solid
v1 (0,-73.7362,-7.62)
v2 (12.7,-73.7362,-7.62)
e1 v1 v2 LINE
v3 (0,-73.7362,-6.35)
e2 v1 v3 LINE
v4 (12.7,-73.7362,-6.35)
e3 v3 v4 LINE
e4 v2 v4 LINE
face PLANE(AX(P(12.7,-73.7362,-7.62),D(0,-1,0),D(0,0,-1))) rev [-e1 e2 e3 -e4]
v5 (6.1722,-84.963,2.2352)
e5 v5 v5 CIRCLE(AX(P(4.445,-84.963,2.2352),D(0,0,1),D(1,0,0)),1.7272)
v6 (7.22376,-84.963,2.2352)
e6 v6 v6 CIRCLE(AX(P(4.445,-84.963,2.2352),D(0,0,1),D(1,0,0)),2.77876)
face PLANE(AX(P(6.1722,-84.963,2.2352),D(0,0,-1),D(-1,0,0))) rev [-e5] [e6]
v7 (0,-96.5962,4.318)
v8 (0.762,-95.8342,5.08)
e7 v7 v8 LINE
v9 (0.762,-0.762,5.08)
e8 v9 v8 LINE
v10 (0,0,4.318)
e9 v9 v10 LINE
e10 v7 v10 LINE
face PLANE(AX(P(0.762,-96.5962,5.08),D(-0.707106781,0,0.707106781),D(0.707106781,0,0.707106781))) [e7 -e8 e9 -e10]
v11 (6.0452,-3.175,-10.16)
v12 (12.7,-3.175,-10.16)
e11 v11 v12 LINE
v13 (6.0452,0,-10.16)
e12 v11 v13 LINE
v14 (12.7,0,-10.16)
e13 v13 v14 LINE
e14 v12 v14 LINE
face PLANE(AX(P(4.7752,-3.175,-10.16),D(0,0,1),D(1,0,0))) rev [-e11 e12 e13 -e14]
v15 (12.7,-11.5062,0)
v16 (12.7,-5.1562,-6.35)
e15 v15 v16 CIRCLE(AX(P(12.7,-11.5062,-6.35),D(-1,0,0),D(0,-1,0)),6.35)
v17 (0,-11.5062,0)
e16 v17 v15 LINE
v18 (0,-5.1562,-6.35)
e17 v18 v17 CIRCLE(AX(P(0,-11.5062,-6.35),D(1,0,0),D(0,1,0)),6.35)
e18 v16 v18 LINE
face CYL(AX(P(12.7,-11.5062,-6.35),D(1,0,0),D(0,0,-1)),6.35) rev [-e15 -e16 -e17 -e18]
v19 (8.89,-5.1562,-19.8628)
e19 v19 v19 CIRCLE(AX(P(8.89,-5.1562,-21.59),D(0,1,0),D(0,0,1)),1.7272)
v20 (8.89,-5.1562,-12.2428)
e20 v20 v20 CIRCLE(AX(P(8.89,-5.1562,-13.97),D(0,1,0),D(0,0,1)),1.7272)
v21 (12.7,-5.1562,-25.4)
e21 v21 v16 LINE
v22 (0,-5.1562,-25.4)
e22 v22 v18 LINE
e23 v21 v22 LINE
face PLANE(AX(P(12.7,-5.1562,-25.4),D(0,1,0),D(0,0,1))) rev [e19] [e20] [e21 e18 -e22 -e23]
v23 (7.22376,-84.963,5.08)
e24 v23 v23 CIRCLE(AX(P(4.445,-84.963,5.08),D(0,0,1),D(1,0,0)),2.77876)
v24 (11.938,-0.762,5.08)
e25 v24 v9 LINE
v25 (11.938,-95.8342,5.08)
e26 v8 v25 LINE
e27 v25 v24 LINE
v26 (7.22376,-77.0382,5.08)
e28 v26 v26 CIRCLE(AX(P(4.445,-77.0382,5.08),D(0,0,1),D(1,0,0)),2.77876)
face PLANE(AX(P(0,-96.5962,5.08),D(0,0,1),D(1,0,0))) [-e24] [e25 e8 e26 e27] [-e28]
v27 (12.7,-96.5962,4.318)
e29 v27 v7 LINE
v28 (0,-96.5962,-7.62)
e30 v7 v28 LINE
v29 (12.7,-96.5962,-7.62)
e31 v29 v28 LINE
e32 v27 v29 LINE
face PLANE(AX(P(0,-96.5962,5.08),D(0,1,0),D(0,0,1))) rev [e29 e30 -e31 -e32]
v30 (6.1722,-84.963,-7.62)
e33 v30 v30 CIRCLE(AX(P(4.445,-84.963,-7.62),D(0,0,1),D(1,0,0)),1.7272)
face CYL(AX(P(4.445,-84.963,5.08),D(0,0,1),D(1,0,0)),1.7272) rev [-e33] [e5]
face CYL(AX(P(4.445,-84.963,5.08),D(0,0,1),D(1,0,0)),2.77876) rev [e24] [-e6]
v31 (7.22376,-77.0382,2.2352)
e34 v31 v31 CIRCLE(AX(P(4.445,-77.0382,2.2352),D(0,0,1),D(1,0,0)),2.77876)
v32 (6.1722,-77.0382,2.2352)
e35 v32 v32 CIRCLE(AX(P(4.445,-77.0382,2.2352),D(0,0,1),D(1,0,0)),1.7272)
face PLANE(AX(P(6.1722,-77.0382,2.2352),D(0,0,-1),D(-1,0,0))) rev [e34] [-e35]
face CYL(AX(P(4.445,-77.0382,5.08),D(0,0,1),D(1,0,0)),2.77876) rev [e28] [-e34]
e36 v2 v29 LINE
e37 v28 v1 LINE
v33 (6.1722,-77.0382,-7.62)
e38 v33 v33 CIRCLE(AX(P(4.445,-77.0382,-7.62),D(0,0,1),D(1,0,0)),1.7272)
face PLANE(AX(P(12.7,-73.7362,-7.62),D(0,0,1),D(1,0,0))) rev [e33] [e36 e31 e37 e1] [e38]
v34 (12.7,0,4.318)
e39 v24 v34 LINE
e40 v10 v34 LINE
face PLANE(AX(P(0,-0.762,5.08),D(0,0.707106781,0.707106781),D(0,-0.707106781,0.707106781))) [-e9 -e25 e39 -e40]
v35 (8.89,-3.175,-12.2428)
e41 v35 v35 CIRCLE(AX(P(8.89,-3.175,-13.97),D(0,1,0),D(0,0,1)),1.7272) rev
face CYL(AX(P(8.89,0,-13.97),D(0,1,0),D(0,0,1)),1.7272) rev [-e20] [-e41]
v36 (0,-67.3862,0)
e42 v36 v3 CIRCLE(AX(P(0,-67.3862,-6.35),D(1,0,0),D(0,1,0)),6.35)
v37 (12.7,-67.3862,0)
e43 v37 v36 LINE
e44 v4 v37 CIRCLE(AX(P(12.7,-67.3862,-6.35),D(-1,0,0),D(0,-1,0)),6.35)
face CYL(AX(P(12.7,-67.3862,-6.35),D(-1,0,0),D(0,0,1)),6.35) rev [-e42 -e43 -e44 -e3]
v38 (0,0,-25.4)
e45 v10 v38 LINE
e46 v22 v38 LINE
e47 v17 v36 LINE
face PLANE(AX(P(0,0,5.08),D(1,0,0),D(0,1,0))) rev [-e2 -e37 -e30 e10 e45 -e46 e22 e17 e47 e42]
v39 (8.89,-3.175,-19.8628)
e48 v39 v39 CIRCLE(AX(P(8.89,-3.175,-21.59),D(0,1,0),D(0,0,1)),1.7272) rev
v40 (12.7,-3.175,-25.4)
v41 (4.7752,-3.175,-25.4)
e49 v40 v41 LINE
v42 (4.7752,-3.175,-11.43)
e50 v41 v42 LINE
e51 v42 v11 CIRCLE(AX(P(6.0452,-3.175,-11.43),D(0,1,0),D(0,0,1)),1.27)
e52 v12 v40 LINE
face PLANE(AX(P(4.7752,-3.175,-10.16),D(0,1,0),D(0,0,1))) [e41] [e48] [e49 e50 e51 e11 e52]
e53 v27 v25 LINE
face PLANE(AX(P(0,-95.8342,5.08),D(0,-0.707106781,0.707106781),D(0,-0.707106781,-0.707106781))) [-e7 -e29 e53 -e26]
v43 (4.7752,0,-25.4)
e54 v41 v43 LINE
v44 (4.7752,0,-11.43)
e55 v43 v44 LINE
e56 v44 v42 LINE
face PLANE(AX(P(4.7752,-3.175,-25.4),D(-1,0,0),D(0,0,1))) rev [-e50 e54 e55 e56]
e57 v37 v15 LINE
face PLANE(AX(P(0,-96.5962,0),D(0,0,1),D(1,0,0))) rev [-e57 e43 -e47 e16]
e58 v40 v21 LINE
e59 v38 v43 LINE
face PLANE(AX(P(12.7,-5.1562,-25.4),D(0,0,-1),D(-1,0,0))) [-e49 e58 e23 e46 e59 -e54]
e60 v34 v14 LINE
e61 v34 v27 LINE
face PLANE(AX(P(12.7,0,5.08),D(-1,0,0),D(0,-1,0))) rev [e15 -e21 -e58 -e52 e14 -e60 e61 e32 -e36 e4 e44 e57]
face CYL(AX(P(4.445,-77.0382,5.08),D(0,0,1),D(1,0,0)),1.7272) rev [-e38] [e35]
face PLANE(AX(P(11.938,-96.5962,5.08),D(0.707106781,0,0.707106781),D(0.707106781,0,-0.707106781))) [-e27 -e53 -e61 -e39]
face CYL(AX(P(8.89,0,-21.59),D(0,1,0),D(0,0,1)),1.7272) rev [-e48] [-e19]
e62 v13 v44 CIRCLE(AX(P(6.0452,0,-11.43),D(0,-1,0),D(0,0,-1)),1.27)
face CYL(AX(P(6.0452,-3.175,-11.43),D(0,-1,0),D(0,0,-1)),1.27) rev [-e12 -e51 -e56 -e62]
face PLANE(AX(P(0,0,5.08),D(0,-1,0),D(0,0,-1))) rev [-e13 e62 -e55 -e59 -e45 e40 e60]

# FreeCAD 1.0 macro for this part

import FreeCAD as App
import Part
import Sketcher

V = App.Vector
Q = App.Units.Quantity


def edges_at(feature, points):
    """Names of the edges that pass closest to the given points."""
    edges = feature.Shape.Edges
    near = lambda p: min(range(len(edges)), key=lambda i: edges[i].distToShape(Part.Vertex(*p))[0])
    return sorted({f"Edge{near(p) + 1}" for p in points})

doc = App.newDocument("Part")
params = doc.addObject("Spreadsheet::Sheet", "Params")
for row, (alias, value) in enumerate([
    ("sketch1_width", "0.5 in"),
    ("sketch1_height", "3.803 in"),
    ("pad1_length", "0.2 in"),
    ("sketch2_width", "0.5 in"),
    ("sketch2_height", "0.203 in"),
    ("pad2_length", "1 in"),
    ("sketch3_width", "0.5 in"),
    ("sketch3_height", "0.9 in"),
    ("pad3_length", "0.3 in"),
    ("sketch4_diameter", "0.136 in"),
    ("hole_diameter", "0.136 in"),
    ("sketch5_height", "0.6 in"),
    ("sketch5_width", "0.312 in"),
    ("pocket1_length", "0.125 in"),
    ("fillet_radius", "0.05 in"),
    ("fillet2_radius", "0.25 in"),
    ("chamfer_size", "0.03 in"),
    ("sketch6_diameter", "0.136 in"),
    ("hole2_diameter", "0.136 in"),
    ("hole2_cbore_diameter", "0.2188 in"),
    ("hole2_cbore_depth", "0.112 in"),
], start=1):
    params.set(f"A{row}", alias)
    params.set(f"B{row}", "=" + value)
    params.setAlias(f"B{row}", alias)

body = doc.addObject("PartDesign::Body", "Body")

# Sketch on XY plane
sketch1 = body.newObject("Sketcher::SketchObject", "Sketch")
sketch1.AttachmentSupport = (doc.getObject("XY_Plane"), [""])
sketch1.MapMode = "FlatFace"
sketch1.addGeometry(Part.LineSegment(V(0, 0, 0), V(0, -97, 0)), False)
sketch1.addGeometry(Part.LineSegment(V(0, -97, 0), V(13, -97, 0)), False)
sketch1.addGeometry(Part.LineSegment(V(13, -97, 0), V(13, 0, 0)), False)
sketch1.addGeometry(Part.LineSegment(V(13, 0, 0), V(0, 0, 0)), False)
sketch1.addConstraint(Sketcher.Constraint("Coincident", 0, 2, 1, 1))
sketch1.addConstraint(Sketcher.Constraint("Coincident", 1, 2, 2, 1))
sketch1.addConstraint(Sketcher.Constraint("Coincident", 2, 2, 3, 1))
sketch1.addConstraint(Sketcher.Constraint("Coincident", 3, 2, 0, 1))
sketch1.addConstraint(Sketcher.Constraint("Vertical", 0))
sketch1.addConstraint(Sketcher.Constraint("Horizontal", 1))
sketch1.addConstraint(Sketcher.Constraint("Vertical", 2))
sketch1.addConstraint(Sketcher.Constraint("Horizontal", 3))
sketch1.addConstraint(Sketcher.Constraint("Coincident", 3, 2, -1, 1))
sketch1.addConstraint(Sketcher.Constraint("DistanceX", 1, 1, 1, 2, Q("0.5 in")))
sketch1.addConstraint(Sketcher.Constraint("DistanceY", 0, 2, 0, 1, Q("3.803 in")))
sketch1.setExpression("Constraints[9]", "Params.sketch1_width")
sketch1.setExpression("Constraints[10]", "Params.sketch1_height")
pad1 = body.newObject("PartDesign::Pad", "Pad")
pad1.Profile = sketch1
pad1.setExpression("Length", "Params.pad1_length")

# Sketch on XY plane
sketch2 = body.newObject("Sketcher::SketchObject", "Sketch001")
sketch2.AttachmentSupport = (doc.getObject("XY_Plane"), [""])
sketch2.MapMode = "FlatFace"
sketch2.addGeometry(Part.LineSegment(V(13, 0, 0), V(13, -5, 0)), False)
sketch2.addGeometry(Part.LineSegment(V(13, -5, 0), V(0, -5, 0)), False)
sketch2.addGeometry(Part.LineSegment(V(0, -5, 0), V(0, 0, 0)), False)
sketch2.addGeometry(Part.LineSegment(V(0, 0, 0), V(13, 0, 0)), False)
sketch2.addConstraint(Sketcher.Constraint("Coincident", 0, 2, 1, 1))
sketch2.addConstraint(Sketcher.Constraint("Coincident", 1, 2, 2, 1))
sketch2.addConstraint(Sketcher.Constraint("Coincident", 2, 2, 3, 1))
sketch2.addConstraint(Sketcher.Constraint("Coincident", 3, 2, 0, 1))
sketch2.addConstraint(Sketcher.Constraint("Vertical", 0))
sketch2.addConstraint(Sketcher.Constraint("Horizontal", 1))
sketch2.addConstraint(Sketcher.Constraint("Vertical", 2))
sketch2.addConstraint(Sketcher.Constraint("Horizontal", 3))
sketch2.addConstraint(Sketcher.Constraint("Coincident", 2, 2, -1, 1))
sketch2.addConstraint(Sketcher.Constraint("DistanceX", 1, 2, 1, 1, Q("0.5 in")))
sketch2.addConstraint(Sketcher.Constraint("DistanceY", 0, 2, 0, 1, Q("0.203 in")))
sketch2.setExpression("Constraints[9]", "Params.sketch2_width")
sketch2.setExpression("Constraints[10]", "Params.sketch2_height")
pad2 = body.newObject("PartDesign::Pad", "Pad001")
pad2.Profile = sketch2
pad2.setExpression("Length", "Params.pad2_length")
pad2.Reversed = True

# Sketch on XY plane
sketch3 = body.newObject("Sketcher::SketchObject", "Sketch002")
sketch3.AttachmentSupport = (doc.getObject("XY_Plane"), [""])
sketch3.MapMode = "FlatFace"
sketch3.addGeometry(Part.LineSegment(V(13, -74, 0), V(13, -97, 0)), False)
sketch3.addGeometry(Part.LineSegment(V(13, -97, 0), V(0, -97, 0)), False)
sketch3.addGeometry(Part.LineSegment(V(0, -97, 0), V(0, -74, 0)), False)
sketch3.addGeometry(Part.LineSegment(V(0, -74, 0), V(13, -74, 0)), False)
sketch3.addConstraint(Sketcher.Constraint("Coincident", 0, 2, 1, 1))
sketch3.addConstraint(Sketcher.Constraint("Coincident", 1, 2, 2, 1))
sketch3.addConstraint(Sketcher.Constraint("Coincident", 2, 2, 3, 1))
sketch3.addConstraint(Sketcher.Constraint("Coincident", 3, 2, 0, 1))
sketch3.addConstraint(Sketcher.Constraint("Vertical", 0))
sketch3.addConstraint(Sketcher.Constraint("Horizontal", 1))
sketch3.addConstraint(Sketcher.Constraint("Vertical", 2))
sketch3.addConstraint(Sketcher.Constraint("Horizontal", 3))
sketch3.addConstraint(Sketcher.Constraint("PointOnObject", 1, 2, -2))
sketch3.addConstraint(Sketcher.Constraint("DistanceX", 1, 2, 1, 1, Q("0.5 in")))
sketch3.addConstraint(Sketcher.Constraint("DistanceY", 0, 2, 0, 1, Q("0.9 in")))
sketch3.addConstraint(Sketcher.Constraint("DistanceY", 0, 2, -1, 1, Q("3.803 in")))
sketch3.setExpression("Constraints[9]", "Params.sketch3_width")
sketch3.setExpression("Constraints[10]", "Params.sketch3_height")
pad3 = body.newObject("PartDesign::Pad", "Pad002")
pad3.Profile = sketch3
pad3.setExpression("Length", "Params.pad3_length")
pad3.Reversed = True

# Sketch on XZ plane
sketch4 = body.newObject("Sketcher::SketchObject", "Sketch003")
sketch4.AttachmentSupport = (doc.getObject("XZ_Plane"), [""])
sketch4.MapMode = "FlatFace"
sketch4.addGeometry(Part.Circle(V(8.9, -21.6, 0), V(0, 0, 1), 1.7), False)
sketch4.addGeometry(Part.Circle(V(8.9, -14, 0), V(0, 0, 1), 1.7), False)
sketch4.addConstraint(Sketcher.Constraint("Equal", 0, 1))
sketch4.addConstraint(Sketcher.Constraint("Vertical", 0, 3, 1, 3))
sketch4.addConstraint(Sketcher.Constraint("Diameter", 0, Q("0.136 in")))
sketch4.addConstraint(Sketcher.Constraint("DistanceY", 0, 3, 1, 3, Q("0.3 in")))
sketch4.addConstraint(Sketcher.Constraint("DistanceX", -1, 1, 0, 3, Q("0.35 in")))
sketch4.addConstraint(Sketcher.Constraint("DistanceY", 0, 3, -1, 1, Q("0.85 in")))
sketch4.setExpression("Constraints[2]", "Params.sketch4_diameter")
doc.recompute()
hole = body.newObject("PartDesign::Hole", "Hole")
hole.Profile = sketch4
hole.ThreadType = "None"
hole.setExpression("Diameter", "Params.hole_diameter")
hole.DepthType = "ThroughAll"
hole.Reversed = True

# Sketch on XZ plane
sketch5 = body.newObject("Sketcher::SketchObject", "Sketch004")
sketch5.AttachmentSupport = (doc.getObject("XZ_Plane"), [""])
sketch5.MapMode = "FlatFace"
sketch5.addGeometry(Part.LineSegment(V(5, -25, 0), V(5, -10, 0)), False)
sketch5.addGeometry(Part.LineSegment(V(5, -10, 0), V(13, -10, 0)), False)
sketch5.addGeometry(Part.LineSegment(V(13, -10, 0), V(13, -25, 0)), False)
sketch5.addGeometry(Part.LineSegment(V(13, -25, 0), V(5, -25, 0)), False)
sketch5.addConstraint(Sketcher.Constraint("Coincident", 0, 2, 1, 1))
sketch5.addConstraint(Sketcher.Constraint("Coincident", 1, 2, 2, 1))
sketch5.addConstraint(Sketcher.Constraint("Coincident", 2, 2, 3, 1))
sketch5.addConstraint(Sketcher.Constraint("Coincident", 3, 2, 0, 1))
sketch5.addConstraint(Sketcher.Constraint("Vertical", 0))
sketch5.addConstraint(Sketcher.Constraint("Horizontal", 1))
sketch5.addConstraint(Sketcher.Constraint("Vertical", 2))
sketch5.addConstraint(Sketcher.Constraint("Horizontal", 3))
sketch5.addConstraint(Sketcher.Constraint("DistanceY", 0, 1, 0, 2, Q("0.6 in")))
sketch5.addConstraint(Sketcher.Constraint("DistanceY", 2, 2, -1, 1, Q("1 in")))
sketch5.addConstraint(Sketcher.Constraint("DistanceX", -1, 1, 1, 2, Q("0.5 in")))
sketch5.addConstraint(Sketcher.Constraint("DistanceX", 1, 1, 1, 2, Q("0.312 in")))
sketch5.setExpression("Constraints[8]", "Params.sketch5_height")
sketch5.setExpression("Constraints[11]", "Params.sketch5_width")
pocket1 = body.newObject("PartDesign::Pocket", "Pocket")
pocket1.Profile = sketch5
pocket1.setExpression("Length", "Params.pocket1_length")
pocket1.Reversed = True
doc.recompute()

fillet = body.newObject("PartDesign::Fillet", "Fillet")
fillet.Base = (pocket1, edges_at(pocket1, [(4.775, -1.587, -10.16)]))
fillet.setExpression("Radius", "Params.fillet_radius")
doc.recompute()

fillet2 = body.newObject("PartDesign::Fillet", "Fillet001")
fillet2.Base = (fillet, edges_at(fillet, [(6.35, -73.736, 0), (6.35, -5.156, 0)]))
fillet2.setExpression("Radius", "Params.fillet2_radius")
doc.recompute()

chamfer = body.newObject("PartDesign::Chamfer", "Chamfer")
chamfer.Base = (fillet2, edges_at(fillet2, [
    (12.7, -48.298, 5.08),
    (6.35, 0, 5.08),
    (0, -48.298, 5.08),
    (6.35, -96.596, 5.08),
]))
chamfer.setExpression("Size", "Params.chamfer_size")

# Sketch on XY plane
sketch6 = body.newObject("Sketcher::SketchObject", "Sketch005")
sketch6.AttachmentSupport = (doc.getObject("XY_Plane"), [""])
sketch6.MapMode = "FlatFace"
sketch6.AttachmentOffset = App.Placement(V(0, 0, 0.2 * 25.4), App.Rotation())
sketch6.addGeometry(Part.Circle(V(4.4, -85, 0), V(0, 0, 1), 1.7), False)
sketch6.addGeometry(Part.Circle(V(4.4, -77, 0), V(0, 0, 1), 1.7), False)
sketch6.addConstraint(Sketcher.Constraint("Equal", 0, 1))
sketch6.addConstraint(Sketcher.Constraint("Vertical", 0, 3, 1, 3))
sketch6.addConstraint(Sketcher.Constraint("Diameter", 0, Q("0.136 in")))
sketch6.addConstraint(Sketcher.Constraint("DistanceX", -1, 1, 0, 3, Q("0.175 in")))
sketch6.addConstraint(Sketcher.Constraint("DistanceY", 0, 3, -1, 1, Q("3.345 in")))
sketch6.addConstraint(Sketcher.Constraint("DistanceY", 1, 3, -1, 1, Q("3.033 in")))
sketch6.setExpression("Constraints[2]", "Params.sketch6_diameter")
doc.recompute()
hole2 = body.newObject("PartDesign::Hole", "Hole001")
hole2.Profile = sketch6
hole2.ThreadType = "None"
hole2.setExpression("Diameter", "Params.hole2_diameter")
hole2.DepthType = "ThroughAll"
hole2.HoleCutType = "Counterbore"
hole2.setExpression("HoleCutDiameter", "Params.hole2_cbore_diameter")
hole2.setExpression("HoleCutDepth", "Params.hole2_cbore_depth")

doc.recompute()
